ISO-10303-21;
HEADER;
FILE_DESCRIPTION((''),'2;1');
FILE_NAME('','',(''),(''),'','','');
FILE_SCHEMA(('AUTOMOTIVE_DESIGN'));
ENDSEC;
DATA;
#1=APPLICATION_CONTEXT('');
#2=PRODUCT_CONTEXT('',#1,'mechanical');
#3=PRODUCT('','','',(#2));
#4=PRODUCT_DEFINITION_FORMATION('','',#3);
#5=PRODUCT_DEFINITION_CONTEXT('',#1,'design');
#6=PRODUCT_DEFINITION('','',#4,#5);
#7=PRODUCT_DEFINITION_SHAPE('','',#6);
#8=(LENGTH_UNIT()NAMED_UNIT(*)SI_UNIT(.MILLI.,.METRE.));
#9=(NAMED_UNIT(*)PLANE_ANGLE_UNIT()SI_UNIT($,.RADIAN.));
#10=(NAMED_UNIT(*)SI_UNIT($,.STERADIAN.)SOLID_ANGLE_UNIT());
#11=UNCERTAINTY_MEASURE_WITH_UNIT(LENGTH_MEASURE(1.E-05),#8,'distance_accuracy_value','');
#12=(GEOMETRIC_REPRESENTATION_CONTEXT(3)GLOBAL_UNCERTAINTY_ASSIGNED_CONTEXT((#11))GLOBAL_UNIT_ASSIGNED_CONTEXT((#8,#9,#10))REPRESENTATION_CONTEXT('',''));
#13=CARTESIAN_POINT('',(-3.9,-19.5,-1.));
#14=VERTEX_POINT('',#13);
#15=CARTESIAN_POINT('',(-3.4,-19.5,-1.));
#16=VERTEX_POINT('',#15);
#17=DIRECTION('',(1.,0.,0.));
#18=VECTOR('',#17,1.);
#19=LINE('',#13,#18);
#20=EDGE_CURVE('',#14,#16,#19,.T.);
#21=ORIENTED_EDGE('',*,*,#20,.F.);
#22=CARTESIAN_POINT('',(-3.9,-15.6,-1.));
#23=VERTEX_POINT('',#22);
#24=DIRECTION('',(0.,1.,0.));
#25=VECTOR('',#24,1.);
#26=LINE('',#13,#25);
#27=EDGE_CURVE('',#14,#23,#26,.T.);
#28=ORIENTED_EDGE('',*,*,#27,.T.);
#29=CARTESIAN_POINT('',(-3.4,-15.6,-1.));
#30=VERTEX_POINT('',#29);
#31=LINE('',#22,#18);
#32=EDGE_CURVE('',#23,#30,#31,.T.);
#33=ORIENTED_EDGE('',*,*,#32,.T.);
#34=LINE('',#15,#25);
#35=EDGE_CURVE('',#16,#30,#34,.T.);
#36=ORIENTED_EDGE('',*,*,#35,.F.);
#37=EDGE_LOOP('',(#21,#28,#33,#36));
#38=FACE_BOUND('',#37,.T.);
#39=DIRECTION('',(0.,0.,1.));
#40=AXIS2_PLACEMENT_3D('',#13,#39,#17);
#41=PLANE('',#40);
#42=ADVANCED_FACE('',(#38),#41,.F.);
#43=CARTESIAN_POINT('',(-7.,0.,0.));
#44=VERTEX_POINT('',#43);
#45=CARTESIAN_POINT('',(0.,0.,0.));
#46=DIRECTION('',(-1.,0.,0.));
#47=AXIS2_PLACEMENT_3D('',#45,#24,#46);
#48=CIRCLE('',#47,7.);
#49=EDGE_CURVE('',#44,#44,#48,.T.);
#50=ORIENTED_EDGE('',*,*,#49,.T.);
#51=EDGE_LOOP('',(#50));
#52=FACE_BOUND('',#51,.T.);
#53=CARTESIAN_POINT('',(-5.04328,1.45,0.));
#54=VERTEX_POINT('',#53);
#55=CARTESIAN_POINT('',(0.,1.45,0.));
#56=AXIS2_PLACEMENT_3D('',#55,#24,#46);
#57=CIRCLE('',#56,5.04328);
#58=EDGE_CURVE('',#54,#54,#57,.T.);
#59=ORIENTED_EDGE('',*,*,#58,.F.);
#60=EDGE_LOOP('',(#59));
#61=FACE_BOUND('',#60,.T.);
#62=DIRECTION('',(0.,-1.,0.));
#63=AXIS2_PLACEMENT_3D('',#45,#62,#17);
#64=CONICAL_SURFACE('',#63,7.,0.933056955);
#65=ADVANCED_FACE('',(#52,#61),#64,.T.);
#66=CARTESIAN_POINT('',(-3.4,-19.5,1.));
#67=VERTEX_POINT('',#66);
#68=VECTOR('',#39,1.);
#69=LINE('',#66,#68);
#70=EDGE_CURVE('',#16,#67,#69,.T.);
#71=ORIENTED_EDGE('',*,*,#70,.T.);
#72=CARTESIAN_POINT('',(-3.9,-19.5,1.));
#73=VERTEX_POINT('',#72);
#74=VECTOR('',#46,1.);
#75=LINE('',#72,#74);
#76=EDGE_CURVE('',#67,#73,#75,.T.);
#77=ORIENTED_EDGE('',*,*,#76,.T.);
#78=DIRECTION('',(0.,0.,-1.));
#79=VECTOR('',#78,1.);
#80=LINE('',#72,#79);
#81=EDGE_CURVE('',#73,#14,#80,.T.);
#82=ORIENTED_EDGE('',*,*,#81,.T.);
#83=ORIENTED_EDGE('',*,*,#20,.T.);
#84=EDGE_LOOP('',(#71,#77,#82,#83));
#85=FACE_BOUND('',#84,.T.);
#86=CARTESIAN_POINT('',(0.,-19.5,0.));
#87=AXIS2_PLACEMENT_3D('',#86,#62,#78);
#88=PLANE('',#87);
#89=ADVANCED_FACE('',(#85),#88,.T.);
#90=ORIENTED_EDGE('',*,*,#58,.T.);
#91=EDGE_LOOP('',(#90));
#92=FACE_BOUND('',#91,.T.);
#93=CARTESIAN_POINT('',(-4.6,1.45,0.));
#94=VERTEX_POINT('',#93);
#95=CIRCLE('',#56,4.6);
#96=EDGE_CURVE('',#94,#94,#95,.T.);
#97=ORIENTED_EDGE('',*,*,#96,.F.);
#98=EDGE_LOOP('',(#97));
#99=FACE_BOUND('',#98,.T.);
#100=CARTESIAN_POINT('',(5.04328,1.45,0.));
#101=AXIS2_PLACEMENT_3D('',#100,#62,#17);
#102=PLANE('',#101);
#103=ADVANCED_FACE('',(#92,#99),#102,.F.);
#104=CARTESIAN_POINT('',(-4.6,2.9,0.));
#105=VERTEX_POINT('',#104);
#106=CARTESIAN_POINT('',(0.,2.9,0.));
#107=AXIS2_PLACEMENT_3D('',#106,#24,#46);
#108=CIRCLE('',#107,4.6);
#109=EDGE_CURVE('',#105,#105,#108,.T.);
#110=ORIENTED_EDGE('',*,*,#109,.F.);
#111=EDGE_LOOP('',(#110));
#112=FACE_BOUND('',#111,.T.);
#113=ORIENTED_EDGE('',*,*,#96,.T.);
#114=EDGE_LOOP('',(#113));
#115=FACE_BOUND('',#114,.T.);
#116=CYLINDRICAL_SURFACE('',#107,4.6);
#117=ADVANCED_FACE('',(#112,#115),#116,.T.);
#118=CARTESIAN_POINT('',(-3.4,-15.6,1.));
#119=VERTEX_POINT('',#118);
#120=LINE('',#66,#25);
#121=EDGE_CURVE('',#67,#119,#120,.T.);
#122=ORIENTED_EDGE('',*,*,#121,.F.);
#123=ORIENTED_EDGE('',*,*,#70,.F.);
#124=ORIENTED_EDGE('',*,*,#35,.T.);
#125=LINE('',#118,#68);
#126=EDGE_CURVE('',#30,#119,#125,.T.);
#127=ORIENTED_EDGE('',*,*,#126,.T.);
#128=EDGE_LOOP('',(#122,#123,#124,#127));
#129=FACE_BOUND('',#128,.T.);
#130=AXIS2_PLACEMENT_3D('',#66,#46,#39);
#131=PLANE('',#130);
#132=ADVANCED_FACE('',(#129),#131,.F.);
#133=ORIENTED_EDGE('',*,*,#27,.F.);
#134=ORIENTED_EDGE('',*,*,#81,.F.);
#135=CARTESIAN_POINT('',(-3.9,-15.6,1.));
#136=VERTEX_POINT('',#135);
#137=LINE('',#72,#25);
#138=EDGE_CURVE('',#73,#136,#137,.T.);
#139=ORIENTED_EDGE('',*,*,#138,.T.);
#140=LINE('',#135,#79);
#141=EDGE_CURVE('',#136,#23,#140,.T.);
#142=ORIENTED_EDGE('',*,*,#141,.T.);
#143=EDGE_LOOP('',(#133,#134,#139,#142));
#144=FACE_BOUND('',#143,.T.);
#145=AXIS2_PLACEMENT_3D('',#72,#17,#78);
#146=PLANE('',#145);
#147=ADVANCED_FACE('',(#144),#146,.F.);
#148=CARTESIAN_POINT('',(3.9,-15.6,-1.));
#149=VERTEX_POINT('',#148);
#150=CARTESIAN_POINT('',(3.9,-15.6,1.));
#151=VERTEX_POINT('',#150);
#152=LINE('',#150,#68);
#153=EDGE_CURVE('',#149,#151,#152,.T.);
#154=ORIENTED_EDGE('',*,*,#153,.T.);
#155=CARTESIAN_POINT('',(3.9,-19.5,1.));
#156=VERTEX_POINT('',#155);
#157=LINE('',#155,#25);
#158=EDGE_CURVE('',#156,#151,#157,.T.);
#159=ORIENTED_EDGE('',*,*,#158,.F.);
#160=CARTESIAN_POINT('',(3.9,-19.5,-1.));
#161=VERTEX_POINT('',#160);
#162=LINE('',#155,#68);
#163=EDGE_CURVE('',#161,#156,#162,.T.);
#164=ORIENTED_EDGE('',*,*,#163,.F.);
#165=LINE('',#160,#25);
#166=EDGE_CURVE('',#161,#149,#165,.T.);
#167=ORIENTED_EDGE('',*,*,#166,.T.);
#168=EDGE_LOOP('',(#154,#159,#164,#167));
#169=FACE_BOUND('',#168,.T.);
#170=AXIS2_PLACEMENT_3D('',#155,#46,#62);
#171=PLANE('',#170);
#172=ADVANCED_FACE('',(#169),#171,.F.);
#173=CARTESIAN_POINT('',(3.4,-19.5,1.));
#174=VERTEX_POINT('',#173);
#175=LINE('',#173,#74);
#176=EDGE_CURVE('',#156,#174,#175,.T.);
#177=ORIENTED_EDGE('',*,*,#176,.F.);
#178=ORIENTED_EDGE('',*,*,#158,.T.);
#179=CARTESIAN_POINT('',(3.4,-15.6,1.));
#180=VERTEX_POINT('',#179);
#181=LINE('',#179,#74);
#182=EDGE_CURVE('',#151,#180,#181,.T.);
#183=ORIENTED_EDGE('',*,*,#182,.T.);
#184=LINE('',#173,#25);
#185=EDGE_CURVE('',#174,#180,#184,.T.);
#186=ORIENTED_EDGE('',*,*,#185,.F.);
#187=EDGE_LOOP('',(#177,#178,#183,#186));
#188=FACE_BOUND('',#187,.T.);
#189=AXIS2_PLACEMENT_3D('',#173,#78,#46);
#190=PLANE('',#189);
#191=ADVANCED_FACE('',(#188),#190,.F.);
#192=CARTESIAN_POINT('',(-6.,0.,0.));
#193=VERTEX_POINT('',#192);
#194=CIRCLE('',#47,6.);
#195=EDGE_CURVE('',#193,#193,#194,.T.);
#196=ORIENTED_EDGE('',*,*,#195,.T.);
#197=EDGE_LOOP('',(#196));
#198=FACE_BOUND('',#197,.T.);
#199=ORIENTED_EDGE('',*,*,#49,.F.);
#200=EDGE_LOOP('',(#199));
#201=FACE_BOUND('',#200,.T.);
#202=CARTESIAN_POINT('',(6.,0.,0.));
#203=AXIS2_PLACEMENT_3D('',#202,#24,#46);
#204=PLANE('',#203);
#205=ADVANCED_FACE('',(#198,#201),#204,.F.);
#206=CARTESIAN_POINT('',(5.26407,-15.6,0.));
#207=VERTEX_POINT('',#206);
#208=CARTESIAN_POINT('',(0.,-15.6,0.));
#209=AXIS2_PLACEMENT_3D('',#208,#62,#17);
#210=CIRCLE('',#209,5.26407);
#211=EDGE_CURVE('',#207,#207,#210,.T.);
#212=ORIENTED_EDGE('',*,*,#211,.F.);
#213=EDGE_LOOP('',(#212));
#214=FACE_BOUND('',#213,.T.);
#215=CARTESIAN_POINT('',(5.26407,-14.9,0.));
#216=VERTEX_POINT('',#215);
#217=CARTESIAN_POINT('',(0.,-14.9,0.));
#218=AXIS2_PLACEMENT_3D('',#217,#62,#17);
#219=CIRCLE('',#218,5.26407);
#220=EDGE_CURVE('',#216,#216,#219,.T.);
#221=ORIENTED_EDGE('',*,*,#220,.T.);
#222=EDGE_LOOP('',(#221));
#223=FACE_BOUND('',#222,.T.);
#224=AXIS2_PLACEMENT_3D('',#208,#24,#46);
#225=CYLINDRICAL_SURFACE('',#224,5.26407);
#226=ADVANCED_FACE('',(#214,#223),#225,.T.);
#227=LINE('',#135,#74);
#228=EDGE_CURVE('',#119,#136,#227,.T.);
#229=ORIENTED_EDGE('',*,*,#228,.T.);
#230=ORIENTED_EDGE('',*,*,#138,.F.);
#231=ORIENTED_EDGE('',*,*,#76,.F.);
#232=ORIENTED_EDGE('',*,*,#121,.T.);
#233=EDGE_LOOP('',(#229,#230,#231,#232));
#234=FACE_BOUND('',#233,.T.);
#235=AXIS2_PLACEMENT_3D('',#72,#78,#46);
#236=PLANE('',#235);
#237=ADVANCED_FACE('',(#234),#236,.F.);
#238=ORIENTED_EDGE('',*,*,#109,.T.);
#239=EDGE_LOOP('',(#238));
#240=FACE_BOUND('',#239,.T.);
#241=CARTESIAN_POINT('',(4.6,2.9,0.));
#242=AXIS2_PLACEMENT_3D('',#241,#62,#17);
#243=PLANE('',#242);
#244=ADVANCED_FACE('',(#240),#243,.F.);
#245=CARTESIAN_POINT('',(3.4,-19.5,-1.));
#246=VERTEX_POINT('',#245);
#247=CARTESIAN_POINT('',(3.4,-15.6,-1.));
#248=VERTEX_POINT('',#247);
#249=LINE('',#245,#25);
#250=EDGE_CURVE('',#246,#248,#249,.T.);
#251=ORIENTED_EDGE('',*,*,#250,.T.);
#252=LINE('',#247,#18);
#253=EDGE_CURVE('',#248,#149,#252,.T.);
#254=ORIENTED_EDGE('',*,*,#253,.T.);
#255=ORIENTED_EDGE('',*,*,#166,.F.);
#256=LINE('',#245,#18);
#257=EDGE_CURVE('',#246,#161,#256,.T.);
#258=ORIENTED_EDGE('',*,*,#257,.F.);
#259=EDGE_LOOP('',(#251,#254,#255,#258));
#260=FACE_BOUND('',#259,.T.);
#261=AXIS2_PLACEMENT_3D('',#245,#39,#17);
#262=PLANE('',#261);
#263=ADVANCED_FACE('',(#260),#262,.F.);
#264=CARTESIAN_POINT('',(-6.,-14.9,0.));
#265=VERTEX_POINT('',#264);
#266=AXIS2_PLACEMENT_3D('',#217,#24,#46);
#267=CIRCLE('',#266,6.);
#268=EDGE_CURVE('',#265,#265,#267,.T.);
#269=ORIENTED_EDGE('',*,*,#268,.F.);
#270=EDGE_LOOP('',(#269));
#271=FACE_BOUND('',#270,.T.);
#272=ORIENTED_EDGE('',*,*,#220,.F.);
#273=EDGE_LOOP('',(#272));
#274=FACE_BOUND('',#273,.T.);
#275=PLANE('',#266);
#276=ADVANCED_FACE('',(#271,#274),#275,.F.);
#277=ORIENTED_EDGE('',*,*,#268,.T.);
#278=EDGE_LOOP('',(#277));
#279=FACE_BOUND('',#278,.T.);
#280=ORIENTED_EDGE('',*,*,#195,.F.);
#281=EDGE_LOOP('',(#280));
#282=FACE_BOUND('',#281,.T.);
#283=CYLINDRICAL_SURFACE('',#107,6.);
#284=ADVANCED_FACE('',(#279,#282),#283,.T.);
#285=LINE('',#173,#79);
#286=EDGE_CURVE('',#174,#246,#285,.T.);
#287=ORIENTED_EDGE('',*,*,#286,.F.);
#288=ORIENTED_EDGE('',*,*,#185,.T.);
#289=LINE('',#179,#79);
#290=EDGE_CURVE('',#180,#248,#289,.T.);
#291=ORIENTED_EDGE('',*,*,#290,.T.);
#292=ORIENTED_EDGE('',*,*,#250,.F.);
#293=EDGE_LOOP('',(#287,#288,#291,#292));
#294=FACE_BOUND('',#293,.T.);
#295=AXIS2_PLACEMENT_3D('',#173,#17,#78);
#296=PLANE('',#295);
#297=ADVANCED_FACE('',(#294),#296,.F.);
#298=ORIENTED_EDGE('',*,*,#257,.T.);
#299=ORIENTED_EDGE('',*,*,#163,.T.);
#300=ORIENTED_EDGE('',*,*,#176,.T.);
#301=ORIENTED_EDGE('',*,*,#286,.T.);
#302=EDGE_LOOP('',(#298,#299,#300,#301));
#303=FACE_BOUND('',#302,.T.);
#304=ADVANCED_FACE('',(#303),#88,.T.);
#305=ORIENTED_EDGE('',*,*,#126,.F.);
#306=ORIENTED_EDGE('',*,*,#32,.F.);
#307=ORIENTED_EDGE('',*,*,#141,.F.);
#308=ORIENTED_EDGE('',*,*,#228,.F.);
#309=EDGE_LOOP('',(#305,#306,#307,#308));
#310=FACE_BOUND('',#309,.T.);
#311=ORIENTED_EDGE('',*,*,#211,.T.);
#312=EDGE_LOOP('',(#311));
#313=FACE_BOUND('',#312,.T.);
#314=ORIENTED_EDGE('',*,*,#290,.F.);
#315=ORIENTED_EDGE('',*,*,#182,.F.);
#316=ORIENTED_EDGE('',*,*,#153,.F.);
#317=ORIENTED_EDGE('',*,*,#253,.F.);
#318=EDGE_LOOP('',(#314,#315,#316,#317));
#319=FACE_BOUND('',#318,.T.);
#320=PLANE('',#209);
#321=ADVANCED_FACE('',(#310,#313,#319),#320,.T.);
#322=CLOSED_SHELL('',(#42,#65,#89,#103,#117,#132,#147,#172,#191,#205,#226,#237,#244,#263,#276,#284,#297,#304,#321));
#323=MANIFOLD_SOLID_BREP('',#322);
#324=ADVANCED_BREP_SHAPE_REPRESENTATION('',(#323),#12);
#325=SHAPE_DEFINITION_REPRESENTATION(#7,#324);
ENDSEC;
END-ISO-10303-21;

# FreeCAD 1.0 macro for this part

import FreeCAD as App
import Part
import Sketcher

V = App.Vector
Q = App.Units.Quantity


def add_polygon(sketch, points):
    """Adds a closed chain of lines whose ends are joined by coincident constraints."""
    first, n = sketch.GeometryCount, len(points)
    for a, b in zip(points, points[1:] + points[:1]):
        sketch.addGeometry(Part.LineSegment(App.Vector(*a, 0), App.Vector(*b, 0)), False)
    for i in range(n):
        sketch.addConstraint(Sketcher.Constraint("Coincident", first + i, 2, first + (i + 1) % n, 1))

doc = App.newDocument("Part")
body = doc.addObject("PartDesign::Body", "Body")

# Sketch on XY plane
sketch1 = body.newObject("Sketcher::SketchObject", "Sketch")
sketch1.AttachmentSupport = (doc.getObject("XY_Plane"), [""])
sketch1.MapMode = "FlatFace"
add_polygon(sketch1, [(0, -14.9), (6, -14.9), (6, 0), (7, 0), (5.04, 1.45), (4.6, 1.45), (4.6, 2.9), (0, 2.9)])  # lines 0-7
sketch1.addConstraint(Sketcher.Constraint("Horizontal", 0))
sketch1.addConstraint(Sketcher.Constraint("Vertical", 1))
sketch1.addConstraint(Sketcher.Constraint("Horizontal", 2))
sketch1.addConstraint(Sketcher.Constraint("Horizontal", 4))
sketch1.addConstraint(Sketcher.Constraint("Vertical", 5))
sketch1.addConstraint(Sketcher.Constraint("Horizontal", 6))
sketch1.addConstraint(Sketcher.Constraint("Vertical", 7))
sketch1.addConstraint(Sketcher.Constraint("PointOnObject", 1, 2, -1))
sketch1.addConstraint(Sketcher.Constraint("PointOnObject", 6, 2, -2))
sketch1.addConstraint(Sketcher.Constraint("DistanceX", 0, 1, 0, 2, Q("6 mm")))
sketch1.addConstraint(Sketcher.Constraint("DistanceX", 2, 1, 2, 2, Q("1 mm")))
sketch1.addConstraint(Sketcher.Constraint("DistanceX", 6, 2, 6, 1, Q("4.6 mm")))
sketch1.addConstraint(Sketcher.Constraint("DistanceY", 1, 1, 1, 2, Q("14.9 mm")))
sketch1.addConstraint(Sketcher.Constraint("DistanceY", 7, 2, 7, 1, Q("17.8 mm")))
sketch1.addConstraint(Sketcher.Constraint("DistanceY", 5, 1, 5, 2, Q("1.45 mm")))
sketch1.addConstraint(Sketcher.Constraint("DistanceX", 4, 2, 4, 1, Q("0.44328 mm")))
revolution = body.newObject("PartDesign::Revolution", "Revolution")
revolution.Profile = sketch1
revolution.ReferenceAxis = (sketch1, ["V_Axis"])
revolution.Angle = 360

# Sketch on XZ plane
sketch2 = body.newObject("Sketcher::SketchObject", "Sketch001")
sketch2.AttachmentSupport = (doc.getObject("XZ_Plane"), [""])
sketch2.MapMode = "FlatFace"
sketch2.AttachmentOffset = App.Placement(V(0, 0, 14.9), App.Rotation())
sketch2.addGeometry(Part.Circle(V(0, 0, 0), V(0, 0, 1), 5), False)
sketch2.addConstraint(Sketcher.Constraint("Coincident", 0, 3, -1, 1))
sketch2.addConstraint(Sketcher.Constraint("Diameter", 0, Q("10.528139 mm")))
pad1 = body.newObject("PartDesign::Pad", "Pad")
pad1.Profile = sketch2
pad1.Length = 0.7

# Sketch on XZ plane
sketch3 = body.newObject("Sketcher::SketchObject", "Sketch002")
sketch3.AttachmentSupport = (doc.getObject("XZ_Plane"), [""])
sketch3.MapMode = "FlatFace"
sketch3.AttachmentOffset = App.Placement(V(0, 0, 15.6), App.Rotation())
add_polygon(sketch3, [(-3.9, 1), (-3.9, -1), (-3.4, -1), (-3.4, 1)])  # lines 0-3
add_polygon(sketch3, [(3.4, 1), (3.4, -1), (3.9, -1), (3.9, 1)])  # lines 4-7
sketch3.addConstraint(Sketcher.Constraint("Vertical", 0))
sketch3.addConstraint(Sketcher.Constraint("Horizontal", 1))
sketch3.addConstraint(Sketcher.Constraint("Vertical", 2))
sketch3.addConstraint(Sketcher.Constraint("Horizontal", 3))
sketch3.addConstraint(Sketcher.Constraint("Vertical", 4))
sketch3.addConstraint(Sketcher.Constraint("Horizontal", 5))
sketch3.addConstraint(Sketcher.Constraint("Vertical", 6))
sketch3.addConstraint(Sketcher.Constraint("Horizontal", 7))
sketch3.addConstraint(Sketcher.Constraint("Symmetric", 2, 2, 4, 2, -1, 1))
sketch3.addConstraint(Sketcher.Constraint("Symmetric", 0, 2, 6, 2, -1, 1))
sketch3.addConstraint(Sketcher.Constraint("Horizontal", 1, 2, 4, 2))
sketch3.addConstraint(Sketcher.Constraint("DistanceY", 0, 2, 0, 1, Q("2 mm")))
sketch3.addConstraint(Sketcher.Constraint("DistanceX", 1, 1, 1, 2, Q("0.5 mm")))
sketch3.addConstraint(Sketcher.Constraint("DistanceX", 0, 2, -1, 1, Q("3.9 mm")))
pad2 = body.newObject("PartDesign::Pad", "Pad001")
pad2.Profile = sketch3
pad2.Length = 3.9

doc.recompute()
